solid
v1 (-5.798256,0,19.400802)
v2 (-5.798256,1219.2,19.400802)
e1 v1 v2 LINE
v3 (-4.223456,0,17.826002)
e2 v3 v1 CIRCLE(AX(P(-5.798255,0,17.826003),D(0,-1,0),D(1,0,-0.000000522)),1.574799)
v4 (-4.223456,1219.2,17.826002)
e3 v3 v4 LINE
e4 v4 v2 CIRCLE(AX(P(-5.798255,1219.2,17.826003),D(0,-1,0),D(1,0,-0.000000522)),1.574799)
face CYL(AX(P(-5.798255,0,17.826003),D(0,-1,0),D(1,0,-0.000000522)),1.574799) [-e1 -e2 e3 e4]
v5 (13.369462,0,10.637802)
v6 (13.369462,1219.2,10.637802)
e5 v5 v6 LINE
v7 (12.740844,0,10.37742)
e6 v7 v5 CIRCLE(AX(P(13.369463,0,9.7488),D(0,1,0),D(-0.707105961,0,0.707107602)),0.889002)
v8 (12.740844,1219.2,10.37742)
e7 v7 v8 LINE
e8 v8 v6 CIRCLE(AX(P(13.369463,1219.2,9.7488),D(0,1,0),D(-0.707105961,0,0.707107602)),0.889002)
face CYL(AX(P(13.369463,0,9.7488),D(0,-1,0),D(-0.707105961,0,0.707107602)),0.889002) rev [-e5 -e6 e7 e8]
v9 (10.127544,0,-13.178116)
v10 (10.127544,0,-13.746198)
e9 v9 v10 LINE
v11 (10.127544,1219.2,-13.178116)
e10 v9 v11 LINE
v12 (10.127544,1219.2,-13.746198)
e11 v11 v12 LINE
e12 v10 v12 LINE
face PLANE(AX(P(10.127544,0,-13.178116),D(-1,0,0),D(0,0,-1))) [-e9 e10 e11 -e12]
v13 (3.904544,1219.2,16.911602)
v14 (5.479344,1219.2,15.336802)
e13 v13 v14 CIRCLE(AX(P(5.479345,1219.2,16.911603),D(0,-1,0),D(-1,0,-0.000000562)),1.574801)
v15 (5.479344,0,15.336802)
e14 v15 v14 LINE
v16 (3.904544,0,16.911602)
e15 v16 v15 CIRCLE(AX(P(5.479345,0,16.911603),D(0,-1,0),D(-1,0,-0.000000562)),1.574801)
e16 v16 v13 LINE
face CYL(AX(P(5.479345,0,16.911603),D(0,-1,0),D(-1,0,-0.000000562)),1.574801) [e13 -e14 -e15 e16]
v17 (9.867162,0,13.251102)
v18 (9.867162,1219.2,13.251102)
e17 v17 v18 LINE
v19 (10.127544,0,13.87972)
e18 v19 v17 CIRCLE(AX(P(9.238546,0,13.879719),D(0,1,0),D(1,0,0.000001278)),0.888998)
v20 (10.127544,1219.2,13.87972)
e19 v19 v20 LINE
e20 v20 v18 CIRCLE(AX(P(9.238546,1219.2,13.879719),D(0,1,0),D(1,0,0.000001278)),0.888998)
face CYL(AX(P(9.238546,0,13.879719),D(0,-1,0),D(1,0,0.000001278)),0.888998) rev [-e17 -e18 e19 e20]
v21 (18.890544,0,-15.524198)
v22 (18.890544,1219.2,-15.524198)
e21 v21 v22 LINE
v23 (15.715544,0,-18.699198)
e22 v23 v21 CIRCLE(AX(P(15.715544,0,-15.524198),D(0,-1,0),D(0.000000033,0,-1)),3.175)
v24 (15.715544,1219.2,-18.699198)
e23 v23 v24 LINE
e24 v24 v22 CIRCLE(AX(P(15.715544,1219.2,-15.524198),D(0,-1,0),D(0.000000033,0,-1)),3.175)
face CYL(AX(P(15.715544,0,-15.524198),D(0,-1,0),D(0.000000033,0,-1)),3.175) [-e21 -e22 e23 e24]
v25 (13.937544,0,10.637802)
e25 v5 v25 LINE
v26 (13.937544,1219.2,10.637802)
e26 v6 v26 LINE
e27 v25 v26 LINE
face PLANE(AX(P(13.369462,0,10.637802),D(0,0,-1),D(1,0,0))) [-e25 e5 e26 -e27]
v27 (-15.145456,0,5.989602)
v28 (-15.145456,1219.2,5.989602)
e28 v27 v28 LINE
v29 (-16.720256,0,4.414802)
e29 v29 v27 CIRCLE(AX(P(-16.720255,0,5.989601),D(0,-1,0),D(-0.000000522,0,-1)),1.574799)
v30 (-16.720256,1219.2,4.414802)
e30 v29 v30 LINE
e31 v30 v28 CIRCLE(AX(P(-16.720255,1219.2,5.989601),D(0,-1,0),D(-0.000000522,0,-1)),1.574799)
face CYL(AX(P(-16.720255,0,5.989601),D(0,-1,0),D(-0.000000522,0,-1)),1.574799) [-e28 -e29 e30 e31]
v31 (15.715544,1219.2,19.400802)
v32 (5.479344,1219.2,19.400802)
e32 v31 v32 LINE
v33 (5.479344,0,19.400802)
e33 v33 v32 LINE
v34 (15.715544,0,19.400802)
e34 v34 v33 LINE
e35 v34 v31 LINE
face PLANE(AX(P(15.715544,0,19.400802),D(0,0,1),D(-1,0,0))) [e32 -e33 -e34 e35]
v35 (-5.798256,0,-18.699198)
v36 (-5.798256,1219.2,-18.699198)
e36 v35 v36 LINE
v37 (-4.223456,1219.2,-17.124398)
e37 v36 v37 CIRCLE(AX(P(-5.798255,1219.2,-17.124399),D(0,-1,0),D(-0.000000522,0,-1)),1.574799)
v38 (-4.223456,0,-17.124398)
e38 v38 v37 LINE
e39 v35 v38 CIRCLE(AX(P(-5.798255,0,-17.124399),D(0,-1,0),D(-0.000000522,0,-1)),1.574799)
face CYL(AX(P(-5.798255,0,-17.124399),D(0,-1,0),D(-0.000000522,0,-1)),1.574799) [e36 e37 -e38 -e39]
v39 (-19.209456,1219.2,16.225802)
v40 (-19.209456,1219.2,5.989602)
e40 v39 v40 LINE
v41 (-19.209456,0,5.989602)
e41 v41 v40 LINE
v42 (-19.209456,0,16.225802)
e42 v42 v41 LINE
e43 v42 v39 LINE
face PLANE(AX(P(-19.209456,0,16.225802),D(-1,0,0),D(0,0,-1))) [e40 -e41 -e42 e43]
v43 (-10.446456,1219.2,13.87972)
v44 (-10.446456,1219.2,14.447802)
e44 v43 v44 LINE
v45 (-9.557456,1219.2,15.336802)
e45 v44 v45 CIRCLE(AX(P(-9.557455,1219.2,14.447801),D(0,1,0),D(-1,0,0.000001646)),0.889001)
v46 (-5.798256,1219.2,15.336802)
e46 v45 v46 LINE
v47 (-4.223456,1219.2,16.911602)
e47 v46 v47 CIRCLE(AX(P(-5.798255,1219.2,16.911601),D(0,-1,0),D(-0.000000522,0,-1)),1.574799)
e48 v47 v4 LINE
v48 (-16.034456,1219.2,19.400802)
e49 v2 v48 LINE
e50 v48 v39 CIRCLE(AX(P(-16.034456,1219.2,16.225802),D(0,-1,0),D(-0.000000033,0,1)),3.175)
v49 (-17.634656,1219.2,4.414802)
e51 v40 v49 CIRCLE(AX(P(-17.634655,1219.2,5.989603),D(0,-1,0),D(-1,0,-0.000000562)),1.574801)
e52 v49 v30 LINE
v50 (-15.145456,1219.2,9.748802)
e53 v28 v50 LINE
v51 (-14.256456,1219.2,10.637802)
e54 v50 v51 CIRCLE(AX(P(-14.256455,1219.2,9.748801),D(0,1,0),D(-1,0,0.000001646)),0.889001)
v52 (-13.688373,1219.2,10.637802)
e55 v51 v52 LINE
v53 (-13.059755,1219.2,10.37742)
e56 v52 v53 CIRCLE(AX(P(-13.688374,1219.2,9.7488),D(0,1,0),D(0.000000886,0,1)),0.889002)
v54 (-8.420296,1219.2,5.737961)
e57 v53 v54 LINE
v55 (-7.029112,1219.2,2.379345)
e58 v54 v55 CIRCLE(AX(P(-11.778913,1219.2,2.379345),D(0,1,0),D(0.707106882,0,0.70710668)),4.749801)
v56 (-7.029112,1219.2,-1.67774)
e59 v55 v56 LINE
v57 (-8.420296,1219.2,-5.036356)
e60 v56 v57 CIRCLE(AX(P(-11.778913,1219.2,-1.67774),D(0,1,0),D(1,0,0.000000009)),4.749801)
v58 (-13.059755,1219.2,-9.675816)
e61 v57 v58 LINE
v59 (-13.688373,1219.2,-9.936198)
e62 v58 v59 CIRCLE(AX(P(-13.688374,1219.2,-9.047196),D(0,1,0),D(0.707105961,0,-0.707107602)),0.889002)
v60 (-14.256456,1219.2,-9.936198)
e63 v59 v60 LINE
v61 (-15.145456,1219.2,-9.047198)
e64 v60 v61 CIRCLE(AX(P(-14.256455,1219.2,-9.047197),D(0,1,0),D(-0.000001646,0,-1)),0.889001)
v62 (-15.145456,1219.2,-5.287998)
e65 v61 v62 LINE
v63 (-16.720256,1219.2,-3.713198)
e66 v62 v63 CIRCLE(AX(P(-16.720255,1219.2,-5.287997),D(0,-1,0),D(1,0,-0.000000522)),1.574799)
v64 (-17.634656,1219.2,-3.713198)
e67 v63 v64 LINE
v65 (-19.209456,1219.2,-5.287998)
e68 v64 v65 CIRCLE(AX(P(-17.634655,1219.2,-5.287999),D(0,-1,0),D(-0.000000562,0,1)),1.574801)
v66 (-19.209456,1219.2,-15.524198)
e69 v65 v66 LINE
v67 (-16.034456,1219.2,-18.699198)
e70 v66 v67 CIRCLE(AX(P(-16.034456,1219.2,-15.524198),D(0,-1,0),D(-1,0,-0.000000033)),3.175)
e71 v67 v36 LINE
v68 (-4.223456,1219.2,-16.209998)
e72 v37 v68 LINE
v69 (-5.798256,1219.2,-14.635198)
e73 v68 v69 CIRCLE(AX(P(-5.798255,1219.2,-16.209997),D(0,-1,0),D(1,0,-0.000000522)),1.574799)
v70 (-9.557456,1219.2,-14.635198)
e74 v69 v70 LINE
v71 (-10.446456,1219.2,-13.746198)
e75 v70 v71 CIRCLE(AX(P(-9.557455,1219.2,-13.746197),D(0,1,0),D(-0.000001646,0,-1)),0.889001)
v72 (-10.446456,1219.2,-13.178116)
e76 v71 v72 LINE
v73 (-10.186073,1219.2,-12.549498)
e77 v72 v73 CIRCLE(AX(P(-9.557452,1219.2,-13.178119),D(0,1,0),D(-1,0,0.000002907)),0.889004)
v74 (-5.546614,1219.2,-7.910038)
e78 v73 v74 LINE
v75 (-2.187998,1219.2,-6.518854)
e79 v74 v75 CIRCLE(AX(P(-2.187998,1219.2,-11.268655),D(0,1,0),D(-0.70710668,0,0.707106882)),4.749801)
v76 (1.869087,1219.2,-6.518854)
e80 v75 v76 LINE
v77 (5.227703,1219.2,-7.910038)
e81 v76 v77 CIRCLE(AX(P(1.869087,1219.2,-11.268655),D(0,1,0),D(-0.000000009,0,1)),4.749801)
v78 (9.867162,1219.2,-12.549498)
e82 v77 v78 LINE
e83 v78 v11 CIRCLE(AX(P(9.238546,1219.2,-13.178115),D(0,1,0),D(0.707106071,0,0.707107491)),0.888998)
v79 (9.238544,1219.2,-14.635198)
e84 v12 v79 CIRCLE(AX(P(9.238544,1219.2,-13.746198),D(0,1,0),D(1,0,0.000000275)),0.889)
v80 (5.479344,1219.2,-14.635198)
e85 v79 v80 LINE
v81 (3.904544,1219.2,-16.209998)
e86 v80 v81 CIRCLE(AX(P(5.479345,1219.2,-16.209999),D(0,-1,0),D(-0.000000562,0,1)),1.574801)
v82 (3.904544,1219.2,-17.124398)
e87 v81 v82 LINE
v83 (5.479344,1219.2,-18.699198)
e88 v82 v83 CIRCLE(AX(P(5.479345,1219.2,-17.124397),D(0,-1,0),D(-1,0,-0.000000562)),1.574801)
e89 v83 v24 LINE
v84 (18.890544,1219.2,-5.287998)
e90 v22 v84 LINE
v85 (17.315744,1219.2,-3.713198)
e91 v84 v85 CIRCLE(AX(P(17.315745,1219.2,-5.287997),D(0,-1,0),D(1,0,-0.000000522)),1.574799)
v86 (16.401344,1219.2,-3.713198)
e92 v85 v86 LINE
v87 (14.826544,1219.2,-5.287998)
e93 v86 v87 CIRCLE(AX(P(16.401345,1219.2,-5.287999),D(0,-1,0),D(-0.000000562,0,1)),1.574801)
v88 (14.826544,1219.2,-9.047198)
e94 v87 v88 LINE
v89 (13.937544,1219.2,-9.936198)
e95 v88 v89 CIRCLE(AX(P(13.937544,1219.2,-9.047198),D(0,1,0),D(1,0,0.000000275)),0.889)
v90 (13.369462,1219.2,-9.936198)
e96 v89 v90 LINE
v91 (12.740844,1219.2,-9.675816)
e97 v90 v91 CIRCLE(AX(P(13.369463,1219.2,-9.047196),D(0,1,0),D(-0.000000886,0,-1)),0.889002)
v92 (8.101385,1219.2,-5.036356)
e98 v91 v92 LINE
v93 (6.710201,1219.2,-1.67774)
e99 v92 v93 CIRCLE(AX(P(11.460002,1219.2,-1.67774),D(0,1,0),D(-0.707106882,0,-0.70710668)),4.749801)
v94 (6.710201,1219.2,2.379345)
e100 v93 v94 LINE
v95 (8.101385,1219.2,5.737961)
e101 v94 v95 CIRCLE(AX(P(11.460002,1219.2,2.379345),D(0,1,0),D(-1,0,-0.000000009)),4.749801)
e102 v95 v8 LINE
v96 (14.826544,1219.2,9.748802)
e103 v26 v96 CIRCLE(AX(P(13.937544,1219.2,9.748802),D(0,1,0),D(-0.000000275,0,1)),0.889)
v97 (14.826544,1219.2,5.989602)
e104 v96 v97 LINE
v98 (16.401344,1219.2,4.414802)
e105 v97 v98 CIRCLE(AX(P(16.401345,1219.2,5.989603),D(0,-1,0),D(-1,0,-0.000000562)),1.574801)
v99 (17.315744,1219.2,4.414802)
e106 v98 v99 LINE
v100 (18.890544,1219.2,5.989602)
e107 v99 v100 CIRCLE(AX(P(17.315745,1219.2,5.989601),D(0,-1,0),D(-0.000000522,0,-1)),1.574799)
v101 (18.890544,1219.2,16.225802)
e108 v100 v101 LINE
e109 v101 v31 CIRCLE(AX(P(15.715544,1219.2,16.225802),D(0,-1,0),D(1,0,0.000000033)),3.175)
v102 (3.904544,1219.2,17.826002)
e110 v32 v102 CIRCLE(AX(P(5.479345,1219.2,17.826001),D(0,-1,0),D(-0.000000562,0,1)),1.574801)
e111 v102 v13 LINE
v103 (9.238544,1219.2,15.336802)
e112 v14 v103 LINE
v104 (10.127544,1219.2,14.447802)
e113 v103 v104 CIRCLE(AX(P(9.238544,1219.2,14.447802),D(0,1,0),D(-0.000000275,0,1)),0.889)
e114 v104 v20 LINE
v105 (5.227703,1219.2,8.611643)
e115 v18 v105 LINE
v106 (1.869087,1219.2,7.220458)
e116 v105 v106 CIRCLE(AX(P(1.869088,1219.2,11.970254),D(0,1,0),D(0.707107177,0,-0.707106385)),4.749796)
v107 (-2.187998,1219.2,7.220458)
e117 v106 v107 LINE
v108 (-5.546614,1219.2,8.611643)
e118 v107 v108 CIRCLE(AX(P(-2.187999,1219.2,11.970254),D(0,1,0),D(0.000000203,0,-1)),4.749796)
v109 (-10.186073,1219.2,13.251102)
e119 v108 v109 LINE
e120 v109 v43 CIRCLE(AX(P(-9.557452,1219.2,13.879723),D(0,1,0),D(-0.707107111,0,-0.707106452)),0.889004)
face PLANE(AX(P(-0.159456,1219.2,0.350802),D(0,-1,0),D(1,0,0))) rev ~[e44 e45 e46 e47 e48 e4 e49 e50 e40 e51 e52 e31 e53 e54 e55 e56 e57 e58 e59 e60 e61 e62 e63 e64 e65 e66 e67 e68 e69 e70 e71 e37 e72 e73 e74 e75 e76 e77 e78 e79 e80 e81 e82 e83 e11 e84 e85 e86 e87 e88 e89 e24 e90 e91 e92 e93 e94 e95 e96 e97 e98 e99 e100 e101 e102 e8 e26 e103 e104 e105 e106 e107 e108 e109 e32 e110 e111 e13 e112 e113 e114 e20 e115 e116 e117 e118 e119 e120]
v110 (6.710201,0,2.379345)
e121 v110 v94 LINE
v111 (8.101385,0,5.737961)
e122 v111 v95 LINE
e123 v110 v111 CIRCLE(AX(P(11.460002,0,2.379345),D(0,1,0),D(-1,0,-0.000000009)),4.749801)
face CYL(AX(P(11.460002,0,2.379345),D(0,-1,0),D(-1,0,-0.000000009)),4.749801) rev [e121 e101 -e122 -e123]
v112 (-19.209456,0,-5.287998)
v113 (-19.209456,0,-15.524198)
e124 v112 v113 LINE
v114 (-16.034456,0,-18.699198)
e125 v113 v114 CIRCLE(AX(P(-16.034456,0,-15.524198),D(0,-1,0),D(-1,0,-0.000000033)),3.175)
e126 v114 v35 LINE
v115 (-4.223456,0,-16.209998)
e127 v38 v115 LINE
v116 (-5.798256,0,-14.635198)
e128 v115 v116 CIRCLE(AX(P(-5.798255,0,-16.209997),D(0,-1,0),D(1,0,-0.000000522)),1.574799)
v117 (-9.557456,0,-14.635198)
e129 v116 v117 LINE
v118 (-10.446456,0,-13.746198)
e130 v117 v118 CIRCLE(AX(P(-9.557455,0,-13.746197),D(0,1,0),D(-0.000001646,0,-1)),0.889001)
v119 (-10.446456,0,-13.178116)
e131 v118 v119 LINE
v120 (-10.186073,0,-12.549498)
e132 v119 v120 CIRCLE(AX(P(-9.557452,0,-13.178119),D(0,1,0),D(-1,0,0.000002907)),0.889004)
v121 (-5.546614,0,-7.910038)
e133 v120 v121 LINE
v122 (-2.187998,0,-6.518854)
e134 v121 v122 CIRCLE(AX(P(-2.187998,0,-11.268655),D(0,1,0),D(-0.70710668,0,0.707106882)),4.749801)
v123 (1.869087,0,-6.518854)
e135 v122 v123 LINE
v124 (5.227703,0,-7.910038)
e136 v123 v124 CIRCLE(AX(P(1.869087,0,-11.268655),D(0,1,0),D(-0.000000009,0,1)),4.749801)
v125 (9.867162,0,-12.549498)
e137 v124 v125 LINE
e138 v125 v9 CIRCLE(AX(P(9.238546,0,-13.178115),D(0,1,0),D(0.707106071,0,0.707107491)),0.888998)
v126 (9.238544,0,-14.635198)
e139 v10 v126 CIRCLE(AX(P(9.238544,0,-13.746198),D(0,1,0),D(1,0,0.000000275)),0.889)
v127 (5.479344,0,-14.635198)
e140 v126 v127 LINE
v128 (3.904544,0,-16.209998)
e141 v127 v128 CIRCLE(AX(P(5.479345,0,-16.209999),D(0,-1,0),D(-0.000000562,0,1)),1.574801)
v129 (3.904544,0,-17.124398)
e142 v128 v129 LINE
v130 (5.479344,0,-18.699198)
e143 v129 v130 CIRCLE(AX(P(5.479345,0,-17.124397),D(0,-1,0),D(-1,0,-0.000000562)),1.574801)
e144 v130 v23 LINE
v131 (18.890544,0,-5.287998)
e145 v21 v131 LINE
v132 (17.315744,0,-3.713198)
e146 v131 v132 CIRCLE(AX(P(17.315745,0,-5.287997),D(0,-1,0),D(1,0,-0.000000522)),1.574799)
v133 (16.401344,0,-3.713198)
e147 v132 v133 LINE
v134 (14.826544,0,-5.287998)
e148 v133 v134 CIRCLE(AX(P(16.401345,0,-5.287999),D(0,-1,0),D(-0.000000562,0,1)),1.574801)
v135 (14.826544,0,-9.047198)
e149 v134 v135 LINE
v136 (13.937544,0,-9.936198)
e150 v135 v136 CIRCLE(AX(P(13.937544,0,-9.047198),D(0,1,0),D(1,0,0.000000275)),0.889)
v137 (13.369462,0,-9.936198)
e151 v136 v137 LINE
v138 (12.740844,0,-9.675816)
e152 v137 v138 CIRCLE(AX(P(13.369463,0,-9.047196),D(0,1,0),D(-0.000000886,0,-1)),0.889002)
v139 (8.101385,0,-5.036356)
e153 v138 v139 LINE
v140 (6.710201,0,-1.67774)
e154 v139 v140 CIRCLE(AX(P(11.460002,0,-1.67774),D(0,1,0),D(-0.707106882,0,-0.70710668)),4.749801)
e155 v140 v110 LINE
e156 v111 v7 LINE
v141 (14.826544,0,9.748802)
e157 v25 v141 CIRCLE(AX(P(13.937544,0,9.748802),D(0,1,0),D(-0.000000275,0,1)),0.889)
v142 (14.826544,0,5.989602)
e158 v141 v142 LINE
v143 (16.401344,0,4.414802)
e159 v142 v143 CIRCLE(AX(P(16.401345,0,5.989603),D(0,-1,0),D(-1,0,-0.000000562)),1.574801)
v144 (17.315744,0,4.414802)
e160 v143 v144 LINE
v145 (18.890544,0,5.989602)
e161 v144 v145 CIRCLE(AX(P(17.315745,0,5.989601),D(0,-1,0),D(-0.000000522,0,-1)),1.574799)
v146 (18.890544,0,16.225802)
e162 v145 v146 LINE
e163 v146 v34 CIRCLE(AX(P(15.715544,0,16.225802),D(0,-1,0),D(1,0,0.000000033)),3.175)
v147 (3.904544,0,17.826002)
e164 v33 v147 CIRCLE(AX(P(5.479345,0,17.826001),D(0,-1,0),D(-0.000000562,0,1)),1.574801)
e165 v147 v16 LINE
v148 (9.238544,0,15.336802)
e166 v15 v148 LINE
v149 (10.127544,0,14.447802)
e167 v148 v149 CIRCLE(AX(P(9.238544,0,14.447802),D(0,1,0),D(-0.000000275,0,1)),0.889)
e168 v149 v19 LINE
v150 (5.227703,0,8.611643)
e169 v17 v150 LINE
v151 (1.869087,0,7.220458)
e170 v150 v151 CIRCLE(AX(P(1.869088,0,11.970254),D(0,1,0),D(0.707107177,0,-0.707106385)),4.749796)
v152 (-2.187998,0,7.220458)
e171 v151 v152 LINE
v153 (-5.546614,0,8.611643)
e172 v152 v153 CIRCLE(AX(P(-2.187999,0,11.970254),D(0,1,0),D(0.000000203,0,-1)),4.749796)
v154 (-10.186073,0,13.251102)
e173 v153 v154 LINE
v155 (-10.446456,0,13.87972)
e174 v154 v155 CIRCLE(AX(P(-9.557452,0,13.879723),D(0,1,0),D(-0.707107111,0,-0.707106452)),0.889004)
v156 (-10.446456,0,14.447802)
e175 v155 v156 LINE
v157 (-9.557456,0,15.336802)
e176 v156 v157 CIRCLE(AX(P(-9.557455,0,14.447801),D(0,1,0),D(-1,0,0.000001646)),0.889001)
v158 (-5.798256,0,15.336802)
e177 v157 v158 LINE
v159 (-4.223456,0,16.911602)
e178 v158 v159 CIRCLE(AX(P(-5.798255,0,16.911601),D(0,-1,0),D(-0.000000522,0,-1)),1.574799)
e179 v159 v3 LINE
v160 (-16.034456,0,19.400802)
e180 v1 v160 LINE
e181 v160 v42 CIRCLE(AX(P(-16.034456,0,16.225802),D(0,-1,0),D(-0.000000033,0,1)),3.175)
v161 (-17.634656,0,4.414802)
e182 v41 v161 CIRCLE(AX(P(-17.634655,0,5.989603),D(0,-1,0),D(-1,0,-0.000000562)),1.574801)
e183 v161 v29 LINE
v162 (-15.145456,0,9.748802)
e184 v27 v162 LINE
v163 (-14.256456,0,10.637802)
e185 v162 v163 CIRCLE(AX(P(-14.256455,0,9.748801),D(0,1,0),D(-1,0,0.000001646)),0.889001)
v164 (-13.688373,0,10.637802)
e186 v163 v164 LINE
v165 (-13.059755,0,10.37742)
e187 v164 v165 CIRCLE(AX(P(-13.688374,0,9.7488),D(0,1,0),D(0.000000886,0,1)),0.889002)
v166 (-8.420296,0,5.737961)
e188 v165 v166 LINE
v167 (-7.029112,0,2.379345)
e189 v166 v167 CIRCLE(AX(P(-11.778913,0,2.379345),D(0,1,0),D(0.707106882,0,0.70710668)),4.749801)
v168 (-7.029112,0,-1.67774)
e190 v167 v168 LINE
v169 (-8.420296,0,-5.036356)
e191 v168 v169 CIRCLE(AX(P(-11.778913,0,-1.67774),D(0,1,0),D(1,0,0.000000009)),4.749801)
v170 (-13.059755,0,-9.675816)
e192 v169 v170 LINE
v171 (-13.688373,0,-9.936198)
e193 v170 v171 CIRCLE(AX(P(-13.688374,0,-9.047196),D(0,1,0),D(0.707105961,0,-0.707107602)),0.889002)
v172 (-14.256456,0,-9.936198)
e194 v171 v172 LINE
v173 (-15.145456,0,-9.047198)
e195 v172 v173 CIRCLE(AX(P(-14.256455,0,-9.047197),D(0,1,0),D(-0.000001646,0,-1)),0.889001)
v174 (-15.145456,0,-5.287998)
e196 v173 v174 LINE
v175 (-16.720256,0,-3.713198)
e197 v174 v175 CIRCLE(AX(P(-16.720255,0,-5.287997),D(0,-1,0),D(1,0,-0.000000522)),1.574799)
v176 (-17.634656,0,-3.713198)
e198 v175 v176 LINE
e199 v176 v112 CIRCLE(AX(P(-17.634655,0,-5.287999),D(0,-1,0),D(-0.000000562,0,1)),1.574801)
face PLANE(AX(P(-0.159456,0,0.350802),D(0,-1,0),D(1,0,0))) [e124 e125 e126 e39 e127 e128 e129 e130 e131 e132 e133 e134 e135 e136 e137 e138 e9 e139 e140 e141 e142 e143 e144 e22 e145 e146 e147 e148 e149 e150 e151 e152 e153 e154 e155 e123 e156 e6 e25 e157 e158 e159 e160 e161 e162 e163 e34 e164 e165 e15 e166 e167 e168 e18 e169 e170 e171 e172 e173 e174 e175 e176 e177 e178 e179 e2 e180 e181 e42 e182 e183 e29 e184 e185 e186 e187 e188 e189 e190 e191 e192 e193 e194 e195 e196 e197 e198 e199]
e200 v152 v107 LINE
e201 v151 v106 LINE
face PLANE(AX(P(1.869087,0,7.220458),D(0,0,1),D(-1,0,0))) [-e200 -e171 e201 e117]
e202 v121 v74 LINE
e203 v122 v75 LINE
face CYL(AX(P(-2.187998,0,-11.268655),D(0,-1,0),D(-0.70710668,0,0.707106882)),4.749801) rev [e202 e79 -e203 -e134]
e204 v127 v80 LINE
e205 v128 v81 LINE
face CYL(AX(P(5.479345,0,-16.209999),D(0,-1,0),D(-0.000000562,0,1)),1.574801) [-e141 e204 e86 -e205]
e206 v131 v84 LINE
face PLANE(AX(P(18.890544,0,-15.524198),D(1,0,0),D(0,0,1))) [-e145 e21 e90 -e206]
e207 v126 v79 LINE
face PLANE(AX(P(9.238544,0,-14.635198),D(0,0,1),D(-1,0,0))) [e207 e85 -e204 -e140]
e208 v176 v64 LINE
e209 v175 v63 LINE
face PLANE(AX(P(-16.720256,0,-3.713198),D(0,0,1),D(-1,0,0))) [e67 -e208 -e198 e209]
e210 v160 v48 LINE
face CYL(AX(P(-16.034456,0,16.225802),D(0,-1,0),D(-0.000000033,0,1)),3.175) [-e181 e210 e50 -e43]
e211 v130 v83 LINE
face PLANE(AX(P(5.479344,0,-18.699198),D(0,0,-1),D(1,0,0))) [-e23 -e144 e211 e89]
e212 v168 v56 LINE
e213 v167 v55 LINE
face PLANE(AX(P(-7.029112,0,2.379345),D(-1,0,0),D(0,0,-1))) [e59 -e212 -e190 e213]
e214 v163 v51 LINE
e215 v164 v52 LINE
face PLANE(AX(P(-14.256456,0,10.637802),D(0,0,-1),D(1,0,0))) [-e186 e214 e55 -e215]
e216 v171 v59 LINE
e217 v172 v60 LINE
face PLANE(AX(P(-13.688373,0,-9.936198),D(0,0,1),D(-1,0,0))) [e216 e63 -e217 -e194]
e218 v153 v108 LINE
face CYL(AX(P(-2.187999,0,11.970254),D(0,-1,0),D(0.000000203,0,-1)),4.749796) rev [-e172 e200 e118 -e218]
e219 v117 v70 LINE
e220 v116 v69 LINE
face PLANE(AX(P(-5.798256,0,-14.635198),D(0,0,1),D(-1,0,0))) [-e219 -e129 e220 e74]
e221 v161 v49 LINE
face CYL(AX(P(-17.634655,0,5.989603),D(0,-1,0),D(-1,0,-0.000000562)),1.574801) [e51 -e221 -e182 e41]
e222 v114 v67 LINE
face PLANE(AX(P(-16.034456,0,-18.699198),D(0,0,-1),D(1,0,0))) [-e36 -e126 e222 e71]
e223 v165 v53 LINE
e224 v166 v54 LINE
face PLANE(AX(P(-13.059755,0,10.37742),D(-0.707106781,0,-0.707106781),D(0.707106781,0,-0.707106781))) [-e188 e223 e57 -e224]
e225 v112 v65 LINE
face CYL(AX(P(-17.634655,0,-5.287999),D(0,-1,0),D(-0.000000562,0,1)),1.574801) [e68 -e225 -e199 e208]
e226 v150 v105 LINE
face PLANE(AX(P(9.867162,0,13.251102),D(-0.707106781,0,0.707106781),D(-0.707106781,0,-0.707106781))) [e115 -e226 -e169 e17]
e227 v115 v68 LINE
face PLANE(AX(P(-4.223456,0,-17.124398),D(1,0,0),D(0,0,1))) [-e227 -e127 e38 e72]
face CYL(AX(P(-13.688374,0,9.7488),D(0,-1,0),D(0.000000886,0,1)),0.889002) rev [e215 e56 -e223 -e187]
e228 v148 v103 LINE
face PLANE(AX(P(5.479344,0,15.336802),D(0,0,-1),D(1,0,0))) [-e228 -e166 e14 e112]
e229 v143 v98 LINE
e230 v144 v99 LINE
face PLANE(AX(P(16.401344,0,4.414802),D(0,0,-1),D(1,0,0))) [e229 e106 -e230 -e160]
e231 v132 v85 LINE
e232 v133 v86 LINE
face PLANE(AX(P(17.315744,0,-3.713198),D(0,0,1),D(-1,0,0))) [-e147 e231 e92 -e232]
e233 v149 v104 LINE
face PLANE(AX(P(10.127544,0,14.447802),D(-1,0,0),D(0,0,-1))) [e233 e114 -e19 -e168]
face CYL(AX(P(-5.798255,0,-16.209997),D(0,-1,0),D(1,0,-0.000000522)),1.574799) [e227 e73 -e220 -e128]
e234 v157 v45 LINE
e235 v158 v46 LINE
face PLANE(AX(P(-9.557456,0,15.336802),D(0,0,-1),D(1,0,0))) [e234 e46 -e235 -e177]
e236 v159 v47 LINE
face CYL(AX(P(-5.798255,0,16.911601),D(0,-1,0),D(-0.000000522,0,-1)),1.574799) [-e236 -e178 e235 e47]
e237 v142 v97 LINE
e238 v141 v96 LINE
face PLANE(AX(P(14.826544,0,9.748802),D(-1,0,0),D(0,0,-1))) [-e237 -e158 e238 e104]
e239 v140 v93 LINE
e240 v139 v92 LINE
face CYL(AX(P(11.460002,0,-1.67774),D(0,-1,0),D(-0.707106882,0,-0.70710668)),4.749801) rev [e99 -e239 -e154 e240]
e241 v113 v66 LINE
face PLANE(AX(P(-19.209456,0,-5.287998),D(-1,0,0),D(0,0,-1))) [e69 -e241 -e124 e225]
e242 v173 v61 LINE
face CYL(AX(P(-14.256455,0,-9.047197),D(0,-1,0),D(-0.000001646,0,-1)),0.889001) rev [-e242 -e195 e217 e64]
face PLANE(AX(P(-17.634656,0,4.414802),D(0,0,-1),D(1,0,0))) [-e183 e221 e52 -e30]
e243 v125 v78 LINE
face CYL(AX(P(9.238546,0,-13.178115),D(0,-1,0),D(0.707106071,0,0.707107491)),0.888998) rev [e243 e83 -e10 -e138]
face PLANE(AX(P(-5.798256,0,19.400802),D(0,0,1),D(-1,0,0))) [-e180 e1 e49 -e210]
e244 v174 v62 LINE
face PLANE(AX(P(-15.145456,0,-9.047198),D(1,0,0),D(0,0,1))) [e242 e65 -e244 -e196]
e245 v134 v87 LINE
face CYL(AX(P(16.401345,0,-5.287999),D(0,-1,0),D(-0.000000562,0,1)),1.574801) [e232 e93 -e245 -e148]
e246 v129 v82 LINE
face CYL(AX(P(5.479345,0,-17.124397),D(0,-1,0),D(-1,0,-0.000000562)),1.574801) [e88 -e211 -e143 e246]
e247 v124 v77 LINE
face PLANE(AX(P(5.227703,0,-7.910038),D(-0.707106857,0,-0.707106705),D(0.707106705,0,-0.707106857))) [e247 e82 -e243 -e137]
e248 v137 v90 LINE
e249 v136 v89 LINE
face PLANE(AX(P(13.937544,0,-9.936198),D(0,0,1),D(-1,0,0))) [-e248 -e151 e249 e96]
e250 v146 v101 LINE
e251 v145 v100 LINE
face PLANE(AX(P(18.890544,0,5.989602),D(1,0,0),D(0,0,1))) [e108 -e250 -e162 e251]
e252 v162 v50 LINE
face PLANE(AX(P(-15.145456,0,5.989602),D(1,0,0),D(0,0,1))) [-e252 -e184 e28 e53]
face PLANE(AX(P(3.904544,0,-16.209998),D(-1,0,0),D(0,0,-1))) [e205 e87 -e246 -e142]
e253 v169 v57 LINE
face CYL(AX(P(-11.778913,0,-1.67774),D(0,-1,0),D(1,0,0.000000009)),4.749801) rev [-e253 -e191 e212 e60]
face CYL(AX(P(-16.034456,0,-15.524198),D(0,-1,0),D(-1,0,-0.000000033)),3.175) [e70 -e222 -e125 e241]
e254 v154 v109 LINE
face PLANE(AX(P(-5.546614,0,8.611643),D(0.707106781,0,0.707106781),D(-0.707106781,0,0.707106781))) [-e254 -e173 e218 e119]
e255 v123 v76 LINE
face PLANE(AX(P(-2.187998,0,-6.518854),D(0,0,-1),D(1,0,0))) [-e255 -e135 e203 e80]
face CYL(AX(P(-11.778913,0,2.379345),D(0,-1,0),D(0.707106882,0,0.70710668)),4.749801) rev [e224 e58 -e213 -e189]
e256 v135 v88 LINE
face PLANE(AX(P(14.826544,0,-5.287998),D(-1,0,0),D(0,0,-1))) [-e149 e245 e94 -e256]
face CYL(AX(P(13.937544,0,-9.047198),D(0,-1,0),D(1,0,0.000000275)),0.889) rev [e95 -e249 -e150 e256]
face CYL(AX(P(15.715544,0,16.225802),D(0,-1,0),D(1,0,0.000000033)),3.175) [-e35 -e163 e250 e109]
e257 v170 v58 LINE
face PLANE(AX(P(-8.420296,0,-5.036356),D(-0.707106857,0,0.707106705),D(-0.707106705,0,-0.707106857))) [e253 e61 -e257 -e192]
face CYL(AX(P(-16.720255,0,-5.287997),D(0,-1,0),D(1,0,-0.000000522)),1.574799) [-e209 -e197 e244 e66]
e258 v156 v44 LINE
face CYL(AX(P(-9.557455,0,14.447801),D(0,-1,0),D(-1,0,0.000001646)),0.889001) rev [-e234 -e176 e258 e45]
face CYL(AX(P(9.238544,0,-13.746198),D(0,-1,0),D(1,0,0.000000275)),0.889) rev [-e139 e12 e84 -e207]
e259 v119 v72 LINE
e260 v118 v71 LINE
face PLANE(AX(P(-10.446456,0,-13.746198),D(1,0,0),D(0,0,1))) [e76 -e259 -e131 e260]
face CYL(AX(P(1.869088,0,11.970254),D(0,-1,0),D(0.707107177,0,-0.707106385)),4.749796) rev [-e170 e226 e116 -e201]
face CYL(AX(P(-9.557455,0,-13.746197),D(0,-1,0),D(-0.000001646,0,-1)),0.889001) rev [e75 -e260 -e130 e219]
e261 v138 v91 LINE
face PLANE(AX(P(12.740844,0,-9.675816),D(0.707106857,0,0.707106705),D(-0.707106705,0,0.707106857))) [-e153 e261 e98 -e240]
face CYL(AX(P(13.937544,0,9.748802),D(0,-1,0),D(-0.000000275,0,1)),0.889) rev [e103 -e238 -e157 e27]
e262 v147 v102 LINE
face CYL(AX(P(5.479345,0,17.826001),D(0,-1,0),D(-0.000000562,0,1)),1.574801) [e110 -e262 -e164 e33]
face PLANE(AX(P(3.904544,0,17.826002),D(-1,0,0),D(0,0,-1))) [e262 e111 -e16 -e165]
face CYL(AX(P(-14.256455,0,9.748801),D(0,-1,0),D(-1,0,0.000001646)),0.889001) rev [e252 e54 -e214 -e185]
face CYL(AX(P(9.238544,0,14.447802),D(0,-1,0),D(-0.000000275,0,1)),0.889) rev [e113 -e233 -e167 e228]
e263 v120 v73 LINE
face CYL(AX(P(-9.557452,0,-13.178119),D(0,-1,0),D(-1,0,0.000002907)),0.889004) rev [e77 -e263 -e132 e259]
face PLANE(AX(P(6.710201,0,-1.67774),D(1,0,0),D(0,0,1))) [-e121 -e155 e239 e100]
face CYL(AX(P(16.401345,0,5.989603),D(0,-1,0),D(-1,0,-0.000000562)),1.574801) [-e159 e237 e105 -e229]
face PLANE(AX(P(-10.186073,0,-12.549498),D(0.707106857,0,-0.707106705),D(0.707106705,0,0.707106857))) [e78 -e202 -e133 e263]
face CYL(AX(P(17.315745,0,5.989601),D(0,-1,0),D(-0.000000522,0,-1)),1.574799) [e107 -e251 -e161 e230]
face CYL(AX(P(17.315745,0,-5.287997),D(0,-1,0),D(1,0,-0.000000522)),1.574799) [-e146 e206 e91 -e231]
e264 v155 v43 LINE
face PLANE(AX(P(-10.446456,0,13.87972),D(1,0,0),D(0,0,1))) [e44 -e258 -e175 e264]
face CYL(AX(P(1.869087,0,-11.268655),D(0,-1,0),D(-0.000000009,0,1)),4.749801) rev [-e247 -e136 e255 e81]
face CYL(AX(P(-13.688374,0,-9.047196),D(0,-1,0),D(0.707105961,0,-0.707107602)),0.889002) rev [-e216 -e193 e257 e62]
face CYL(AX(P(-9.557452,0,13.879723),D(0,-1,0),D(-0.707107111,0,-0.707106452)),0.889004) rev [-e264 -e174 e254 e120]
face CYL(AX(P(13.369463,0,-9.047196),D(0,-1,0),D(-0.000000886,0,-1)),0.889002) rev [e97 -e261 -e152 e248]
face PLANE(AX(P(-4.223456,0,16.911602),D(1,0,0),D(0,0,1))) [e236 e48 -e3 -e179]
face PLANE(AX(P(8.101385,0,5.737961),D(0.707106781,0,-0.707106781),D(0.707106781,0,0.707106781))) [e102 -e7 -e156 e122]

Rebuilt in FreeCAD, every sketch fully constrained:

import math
import FreeCAD as App
import Part
import Sketcher
from FreeCAD import Vector
Q = App.Units.Quantity

doc = App.newDocument("Part")
body = doc.addObject("PartDesign::Body", "Body")

# Sketch on XZ plane
sketch1 = doc.addObject("Sketcher::SketchObject", "Sketch")
body.addObject(sketch1)
sketch1.AttachmentSupport = (doc.XZ_Plane, [""])
sketch1.MapMode = "FlatFace"
sketch1.addGeometry([
    Part.LineSegment(Vector(-5.798256, 19.400802, 0), Vector(-16.034456, 19.400802, 0)),  # 0
    Part.ArcOfCircle(Part.Circle(Vector(-16.034456, 16.225802, 0), Vector(0, 0, 1), 3.175), math.radians(90.000002), math.radians(179.999998)),  # 1
    Part.LineSegment(Vector(-19.209456, 16.225802, 0), Vector(-19.209456, 5.989602, 0)),  # 2
    Part.ArcOfCircle(Part.Circle(Vector(-17.634655, 5.989603, 0), Vector(0, 0, 1), 1.574801), math.radians(-179.999968), math.radians(-90.000032)),  # 3
    Part.LineSegment(Vector(-17.634656, 4.414802, 0), Vector(-16.720256, 4.414802, 0)),  # 4
    Part.ArcOfCircle(Part.Circle(Vector(-16.720255, 5.989601, 0), Vector(0, 0, 1), 1.574799), math.radians(-90.00003), math.radians(0.00003)),  # 5
    Part.LineSegment(Vector(-15.145456, 5.989602, 0), Vector(-15.145456, 9.748802, 0)),  # 6
    Part.ArcOfCircle(Part.Circle(Vector(-14.256455, 9.748801, 0), Vector(0, 0, 1), 0.889001), math.radians(90.000094), math.radians(179.999906)),  # 7
    Part.LineSegment(Vector(-14.256456, 10.637802, 0), Vector(-13.688373, 10.637802, 0)),  # 8
    Part.ArcOfCircle(Part.Circle(Vector(-13.688374, 9.7488, 0), Vector(0, 0, 1), 0.889002), math.radians(45.000066), math.radians(89.999949)),  # 9
    Part.LineSegment(Vector(-13.059755, 10.37742, 0), Vector(-8.420296, 5.737961, 0)),  # 10
    Part.ArcOfCircle(Part.Circle(Vector(-11.778913, 2.379345, 0), Vector(0, 0, 1), 4.749801), math.radians(-0.000001), math.radians(44.999992)),  # 11
    Part.LineSegment(Vector(-7.029112, 2.379345, 0), Vector(-7.029112, -1.67774, 0)),  # 12
    Part.ArcOfCircle(Part.Circle(Vector(-11.778913, -1.67774, 0), Vector(0, 0, 1), 4.749801), math.radians(-44.999992), math.radians(0.000001)),  # 13
    Part.LineSegment(Vector(-8.420296, -5.036356, 0), Vector(-13.059755, -9.675816, 0)),  # 14
    Part.ArcOfCircle(Part.Circle(Vector(-13.688374, -9.047196, 0), Vector(0, 0, 1), 0.889002), math.radians(-89.999949), math.radians(-45.000066)),  # 15
    Part.LineSegment(Vector(-13.688373, -9.936198, 0), Vector(-14.256456, -9.936198, 0)),  # 16
    Part.ArcOfCircle(Part.Circle(Vector(-14.256455, -9.047197, 0), Vector(0, 0, 1), 0.889001), math.radians(-179.999906), math.radians(-90.000094)),  # 17
    Part.LineSegment(Vector(-15.145456, -9.047198, 0), Vector(-15.145456, -5.287998, 0)),  # 18
    Part.ArcOfCircle(Part.Circle(Vector(-16.720255, -5.287997, 0), Vector(0, 0, 1), 1.574799), math.radians(-0.00003), math.radians(90.00003)),  # 19
    Part.LineSegment(Vector(-16.720256, -3.713198, 0), Vector(-17.634656, -3.713198, 0)),  # 20
    Part.ArcOfCircle(Part.Circle(Vector(-17.634655, -5.287999, 0), Vector(0, 0, 1), 1.574801), math.radians(90.000032), math.radians(179.999968)),  # 21
    Part.LineSegment(Vector(-19.209456, -5.287998, 0), Vector(-19.209456, -15.524198, 0)),  # 22
    Part.ArcOfCircle(Part.Circle(Vector(-16.034456, -15.524198, 0), Vector(0, 0, 1), 3.175), math.radians(-179.999998), math.radians(-90.000002)),  # 23
    Part.LineSegment(Vector(-16.034456, -18.699198, 0), Vector(-5.798256, -18.699198, 0)),  # 24
    Part.ArcOfCircle(Part.Circle(Vector(-5.798255, -17.124399, 0), Vector(0, 0, 1), 1.574799), math.radians(-90.00003), math.radians(0.00003)),  # 25
    Part.LineSegment(Vector(-4.223456, -17.124398, 0), Vector(-4.223456, -16.209998, 0)),  # 26
    Part.ArcOfCircle(Part.Circle(Vector(-5.798255, -16.209997, 0), Vector(0, 0, 1), 1.574799), math.radians(-0.00003), math.radians(90.00003)),  # 27
    Part.LineSegment(Vector(-5.798256, -14.635198, 0), Vector(-9.557456, -14.635198, 0)),  # 28
    Part.ArcOfCircle(Part.Circle(Vector(-9.557455, -13.746197, 0), Vector(0, 0, 1), 0.889001), math.radians(-179.999906), math.radians(-90.000094)),  # 29
    Part.LineSegment(Vector(-10.446456, -13.746198, 0), Vector(-10.446456, -13.178116, 0)),  # 30
    Part.ArcOfCircle(Part.Circle(Vector(-9.557452, -13.178119, 0), Vector(0, 0, 1), 0.889004), math.radians(135.000027), math.radians(179.999833)),  # 31
    Part.LineSegment(Vector(-10.186073, -12.549498, 0), Vector(-5.546614, -7.910038, 0)),  # 32
    Part.ArcOfCircle(Part.Circle(Vector(-2.187998, -11.268655, 0), Vector(0, 0, 1), 4.749801), math.radians(89.999999), math.radians(134.999992)),  # 33
    Part.LineSegment(Vector(-2.187998, -6.518854, 0), Vector(1.869087, -6.518854, 0)),  # 34
    Part.ArcOfCircle(Part.Circle(Vector(1.869087, -11.268655, 0), Vector(0, 0, 1), 4.749801), math.radians(45.000008), math.radians(90.000001)),  # 35
    Part.LineSegment(Vector(5.227703, -7.910038, 0), Vector(9.867162, -12.549498, 0)),  # 36
    Part.ArcOfCircle(Part.Circle(Vector(9.238546, -13.178115, 0), Vector(0, 0, 1), 0.888998), math.radians(-0.000073), math.radians(45.000058)),  # 37
    Part.LineSegment(Vector(10.127544, -13.178116, 0), Vector(10.127544, -13.746198, 0)),  # 38
    Part.ArcOfCircle(Part.Circle(Vector(9.238544, -13.746198, 0), Vector(0, 0, 1), 0.889), math.radians(-90.000016), math.radians(0.000016)),  # 39
    Part.LineSegment(Vector(9.238544, -14.635198, 0), Vector(5.479344, -14.635198, 0)),  # 40
    Part.ArcOfCircle(Part.Circle(Vector(5.479345, -16.209999, 0), Vector(0, 0, 1), 1.574801), math.radians(90.000032), math.radians(179.999968)),  # 41
    Part.LineSegment(Vector(3.904544, -16.209998, 0), Vector(3.904544, -17.124398, 0)),  # 42
    Part.ArcOfCircle(Part.Circle(Vector(5.479345, -17.124397, 0), Vector(0, 0, 1), 1.574801), math.radians(-179.999968), math.radians(-90.000032)),  # 43
    Part.LineSegment(Vector(5.479344, -18.699198, 0), Vector(15.715544, -18.699198, 0)),  # 44
    Part.ArcOfCircle(Part.Circle(Vector(15.715544, -15.524198, 0), Vector(0, 0, 1), 3.175), math.radians(-89.999998), math.radians(-0.000002)),  # 45
    Part.LineSegment(Vector(18.890544, -15.524198, 0), Vector(18.890544, -5.287998, 0)),  # 46
    Part.ArcOfCircle(Part.Circle(Vector(17.315745, -5.287997, 0), Vector(0, 0, 1), 1.574799), math.radians(-0.00003), math.radians(90.00003)),  # 47
    Part.LineSegment(Vector(17.315744, -3.713198, 0), Vector(16.401344, -3.713198, 0)),  # 48
    Part.ArcOfCircle(Part.Circle(Vector(16.401345, -5.287999, 0), Vector(0, 0, 1), 1.574801), math.radians(90.000032), math.radians(179.999968)),  # 49
    Part.LineSegment(Vector(14.826544, -5.287998, 0), Vector(14.826544, -9.047198, 0)),  # 50
    Part.ArcOfCircle(Part.Circle(Vector(13.937544, -9.047198, 0), Vector(0, 0, 1), 0.889), math.radians(-90.000016), math.radians(0.000016)),  # 51
    Part.LineSegment(Vector(13.937544, -9.936198, 0), Vector(13.369462, -9.936198, 0)),  # 52
    Part.ArcOfCircle(Part.Circle(Vector(13.369463, -9.047196, 0), Vector(0, 0, 1), 0.889002), math.radians(-134.999934), math.radians(-90.000051)),  # 53
    Part.LineSegment(Vector(12.740844, -9.675816, 0), Vector(8.101385, -5.036356, 0)),  # 54
    Part.ArcOfCircle(Part.Circle(Vector(11.460002, -1.67774, 0), Vector(0, 0, 1), 4.749801), math.radians(179.999999), math.radians(224.999992)),  # 55
    Part.LineSegment(Vector(6.710201, -1.67774, 0), Vector(6.710201, 2.379345, 0)),  # 56
    Part.ArcOfCircle(Part.Circle(Vector(11.460002, 2.379345, 0), Vector(0, 0, 1), 4.749801), math.radians(135.000008), math.radians(180.000001)),  # 57
    Part.LineSegment(Vector(8.101385, 5.737961, 0), Vector(12.740844, 10.37742, 0)),  # 58
    Part.ArcOfCircle(Part.Circle(Vector(13.369463, 9.7488, 0), Vector(0, 0, 1), 0.889002), math.radians(90.000051), math.radians(134.999934)),  # 59
    Part.LineSegment(Vector(13.369462, 10.637802, 0), Vector(13.937544, 10.637802, 0)),  # 60
    Part.ArcOfCircle(Part.Circle(Vector(13.937544, 9.748802, 0), Vector(0, 0, 1), 0.889), math.radians(-0.000016), math.radians(90.000016)),  # 61
    Part.LineSegment(Vector(14.826544, 9.748802, 0), Vector(14.826544, 5.989602, 0)),  # 62
    Part.ArcOfCircle(Part.Circle(Vector(16.401345, 5.989603, 0), Vector(0, 0, 1), 1.574801), math.radians(-179.999968), math.radians(-90.000032)),  # 63
    Part.LineSegment(Vector(16.401344, 4.414802, 0), Vector(17.315744, 4.414802, 0)),  # 64
    Part.ArcOfCircle(Part.Circle(Vector(17.315745, 5.989601, 0), Vector(0, 0, 1), 1.574799), math.radians(-90.00003), math.radians(0.00003)),  # 65
    Part.LineSegment(Vector(18.890544, 5.989602, 0), Vector(18.890544, 16.225802, 0)),  # 66
    Part.ArcOfCircle(Part.Circle(Vector(15.715544, 16.225802, 0), Vector(0, 0, 1), 3.175), math.radians(0.000002), math.radians(89.999998)),  # 67
    Part.LineSegment(Vector(15.715544, 19.400802, 0), Vector(5.479344, 19.400802, 0)),  # 68
    Part.ArcOfCircle(Part.Circle(Vector(5.479345, 17.826001, 0), Vector(0, 0, 1), 1.574801), math.radians(90.000032), math.radians(179.999968)),  # 69
    Part.LineSegment(Vector(3.904544, 17.826002, 0), Vector(3.904544, 16.911602, 0)),  # 70
    Part.ArcOfCircle(Part.Circle(Vector(5.479345, 16.911603, 0), Vector(0, 0, 1), 1.574801), math.radians(-179.999968), math.radians(-90.000032)),  # 71
    Part.LineSegment(Vector(5.479344, 15.336802, 0), Vector(9.238544, 15.336802, 0)),  # 72
    Part.ArcOfCircle(Part.Circle(Vector(9.238544, 14.447802, 0), Vector(0, 0, 1), 0.889), math.radians(-0.000016), math.radians(90.000016)),  # 73
    Part.LineSegment(Vector(10.127544, 14.447802, 0), Vector(10.127544, 13.87972, 0)),  # 74
    Part.ArcOfCircle(Part.Circle(Vector(9.238546, 13.879719, 0), Vector(0, 0, 1), 0.888998), math.radians(-45.000058), math.radians(0.000073)),  # 75
    Part.LineSegment(Vector(9.867162, 13.251102, 0), Vector(5.227703, 8.611643, 0)),  # 76
    Part.ArcOfCircle(Part.Circle(Vector(1.869088, 11.970254, 0), Vector(0, 0, 1), 4.749796), math.radians(-90.000012), math.radians(-44.999968)),  # 77
    Part.LineSegment(Vector(1.869087, 7.220458, 0), Vector(-2.187998, 7.220458, 0)),  # 78
    Part.ArcOfCircle(Part.Circle(Vector(-2.187999, 11.970254, 0), Vector(0, 0, 1), 4.749796), math.radians(-135.000032), math.radians(-89.999988)),  # 79
    Part.LineSegment(Vector(-5.546614, 8.611643, 0), Vector(-10.186073, 13.251102, 0)),  # 80
    Part.ArcOfCircle(Part.Circle(Vector(-9.557452, 13.879723, 0), Vector(0, 0, 1), 0.889004), math.radians(-179.999833), math.radians(-135.000027)),  # 81
    Part.LineSegment(Vector(-10.446456, 13.87972, 0), Vector(-10.446456, 14.447802, 0)),  # 82
    Part.ArcOfCircle(Part.Circle(Vector(-9.557455, 14.447801, 0), Vector(0, 0, 1), 0.889001), math.radians(90.000094), math.radians(179.999906)),  # 83
    Part.LineSegment(Vector(-9.557456, 15.336802, 0), Vector(-5.798256, 15.336802, 0)),  # 84
    Part.ArcOfCircle(Part.Circle(Vector(-5.798255, 16.911601, 0), Vector(0, 0, 1), 1.574799), math.radians(-90.00003), math.radians(0.00003)),  # 85
    Part.LineSegment(Vector(-4.223456, 16.911602, 0), Vector(-4.223456, 17.826002, 0)),  # 86
    Part.ArcOfCircle(Part.Circle(Vector(-5.798255, 17.826003, 0), Vector(0, 0, 1), 1.574799), math.radians(-0.00003), math.radians(90.00003)),  # 87
], False)
sketch1.addConstraint([
    Sketcher.Constraint("Tangent", 0, 2, 1, 1),
    Sketcher.Constraint("Tangent", 1, 2, 2, 1),
    Sketcher.Constraint("Tangent", 2, 2, 3, 1),
    Sketcher.Constraint("Tangent", 3, 2, 4, 1),
    Sketcher.Constraint("Tangent", 4, 2, 5, 1),
    Sketcher.Constraint("Tangent", 5, 2, 6, 1),
    Sketcher.Constraint("Tangent", 6, 2, 7, 2),
    Sketcher.Constraint("Tangent", 7, 1, 8, 1),
    Sketcher.Constraint("Tangent", 8, 2, 9, 2),
    Sketcher.Constraint("Tangent", 9, 1, 10, 1),
    Sketcher.Constraint("Tangent", 10, 2, 11, 2),
    Sketcher.Constraint("Tangent", 11, 1, 12, 1),
    Sketcher.Constraint("Tangent", 12, 2, 13, 2),
    Sketcher.Constraint("Tangent", 13, 1, 14, 1),
    Sketcher.Constraint("Tangent", 14, 2, 15, 2),
    Sketcher.Constraint("Tangent", 15, 1, 16, 1),
    Sketcher.Constraint("Tangent", 16, 2, 17, 2),
    Sketcher.Constraint("Tangent", 17, 1, 18, 1),
    Sketcher.Constraint("Tangent", 18, 2, 19, 1),
    Sketcher.Constraint("Tangent", 19, 2, 20, 1),
    Sketcher.Constraint("Tangent", 20, 2, 21, 1),
    Sketcher.Constraint("Tangent", 21, 2, 22, 1),
    Sketcher.Constraint("Tangent", 22, 2, 23, 1),
    Sketcher.Constraint("Tangent", 23, 2, 24, 1),
    Sketcher.Constraint("Tangent", 24, 2, 25, 1),
    Sketcher.Constraint("Tangent", 25, 2, 26, 1),
    Sketcher.Constraint("Tangent", 26, 2, 27, 1),
    Sketcher.Constraint("Tangent", 27, 2, 28, 1),
    Sketcher.Constraint("Tangent", 28, 2, 29, 2),
    Sketcher.Constraint("Tangent", 29, 1, 30, 1),
    Sketcher.Constraint("Coincident", 30, 2, 31, 2),
    Sketcher.Constraint("Tangent", 31, 1, 32, 1),
    Sketcher.Constraint("Tangent", 32, 2, 33, 2),
    Sketcher.Constraint("Tangent", 33, 1, 34, 1),
    Sketcher.Constraint("Tangent", 34, 2, 35, 2),
    Sketcher.Constraint("Tangent", 35, 1, 36, 1),
    Sketcher.Constraint("Tangent", 36, 2, 37, 2),
    Sketcher.Constraint("Tangent", 37, 1, 38, 1),
    Sketcher.Constraint("Tangent", 38, 2, 39, 2),
    Sketcher.Constraint("Tangent", 39, 1, 40, 1),
    Sketcher.Constraint("Tangent", 40, 2, 41, 1),
    Sketcher.Constraint("Tangent", 41, 2, 42, 1),
    Sketcher.Constraint("Tangent", 42, 2, 43, 1),
    Sketcher.Constraint("Tangent", 43, 2, 44, 1),
    Sketcher.Constraint("Tangent", 44, 2, 45, 1),
    Sketcher.Constraint("Tangent", 45, 2, 46, 1),
    Sketcher.Constraint("Tangent", 46, 2, 47, 1),
    Sketcher.Constraint("Tangent", 47, 2, 48, 1),
    Sketcher.Constraint("Tangent", 48, 2, 49, 1),
    Sketcher.Constraint("Tangent", 49, 2, 50, 1),
    Sketcher.Constraint("Tangent", 50, 2, 51, 2),
    Sketcher.Constraint("Tangent", 51, 1, 52, 1),
    Sketcher.Constraint("Tangent", 52, 2, 53, 2),
    Sketcher.Constraint("Tangent", 53, 1, 54, 1),
    Sketcher.Constraint("Tangent", 54, 2, 55, 2),
    Sketcher.Constraint("Tangent", 55, 1, 56, 1),
    Sketcher.Constraint("Tangent", 56, 2, 57, 2),
    Sketcher.Constraint("Tangent", 57, 1, 58, 1),
    Sketcher.Constraint("Tangent", 58, 2, 59, 2),
    Sketcher.Constraint("Tangent", 59, 1, 60, 1),
    Sketcher.Constraint("Tangent", 60, 2, 61, 2),
    Sketcher.Constraint("Tangent", 61, 1, 62, 1),
    Sketcher.Constraint("Tangent", 62, 2, 63, 1),
    Sketcher.Constraint("Tangent", 63, 2, 64, 1),
    Sketcher.Constraint("Tangent", 64, 2, 65, 1),
    Sketcher.Constraint("Tangent", 65, 2, 66, 1),
    Sketcher.Constraint("Tangent", 66, 2, 67, 1),
    Sketcher.Constraint("Tangent", 67, 2, 68, 1),
    Sketcher.Constraint("Tangent", 68, 2, 69, 1),
    Sketcher.Constraint("Tangent", 69, 2, 70, 1),
    Sketcher.Constraint("Tangent", 70, 2, 71, 1),
    Sketcher.Constraint("Tangent", 71, 2, 72, 1),
    Sketcher.Constraint("Tangent", 72, 2, 73, 2),
    Sketcher.Constraint("Tangent", 73, 1, 74, 1),
    Sketcher.Constraint("Tangent", 74, 2, 75, 2),
    Sketcher.Constraint("Tangent", 75, 1, 76, 1),
    Sketcher.Constraint("Tangent", 76, 2, 77, 2),
    Sketcher.Constraint("Tangent", 77, 1, 78, 1),
    Sketcher.Constraint("Tangent", 78, 2, 79, 2),
    Sketcher.Constraint("Tangent", 79, 1, 80, 1),
    Sketcher.Constraint("Tangent", 80, 2, 81, 2),
    Sketcher.Constraint("Coincident", 81, 1, 82, 1),
    Sketcher.Constraint("Tangent", 82, 2, 83, 2),
    Sketcher.Constraint("Tangent", 83, 1, 84, 1),
    Sketcher.Constraint("Tangent", 84, 2, 85, 1),
    Sketcher.Constraint("Tangent", 85, 2, 86, 1),
    Sketcher.Constraint("Tangent", 86, 2, 87, 1),
    Sketcher.Constraint("Tangent", 87, 2, 0, 1),
    Sketcher.Constraint("Horizontal", 0),
    Sketcher.Constraint("Vertical", 2),
    Sketcher.Constraint("Horizontal", 4),
    Sketcher.Constraint("Vertical", 6),
    Sketcher.Constraint("Horizontal", 8),
    Sketcher.Constraint("Vertical", 12),
    Sketcher.Constraint("Horizontal", 16),
    Sketcher.Constraint("Vertical", 18),
    Sketcher.Constraint("Horizontal", 20),
    Sketcher.Constraint("Vertical", 22),
    Sketcher.Constraint("Horizontal", 24),
    Sketcher.Constraint("Vertical", 26),
    Sketcher.Constraint("Horizontal", 28),
    Sketcher.Constraint("Vertical", 30),
    Sketcher.Constraint("Horizontal", 34),
    Sketcher.Constraint("Vertical", 38),
    Sketcher.Constraint("Horizontal", 40),
    Sketcher.Constraint("Vertical", 42),
    Sketcher.Constraint("Horizontal", 44),
    Sketcher.Constraint("Vertical", 46),
    Sketcher.Constraint("Horizontal", 48),
    Sketcher.Constraint("Vertical", 50),
    Sketcher.Constraint("Horizontal", 52),
    Sketcher.Constraint("Vertical", 56),
    Sketcher.Constraint("Horizontal", 60),
    Sketcher.Constraint("Vertical", 62),
    Sketcher.Constraint("Horizontal", 64),
    Sketcher.Constraint("Vertical", 66),
    Sketcher.Constraint("Horizontal", 68),
    Sketcher.Constraint("Vertical", 70),
    Sketcher.Constraint("Horizontal", 72),
    Sketcher.Constraint("Vertical", 74),
    Sketcher.Constraint("Horizontal", 78),
    Sketcher.Constraint("Vertical", 82),
    Sketcher.Constraint("Horizontal", 84),
    Sketcher.Constraint("Vertical", 86),
    Sketcher.Constraint("Equal", 3, 5),
    Sketcher.Constraint("Equal", 7, 9),
    Sketcher.Constraint("Equal", 11, 13),
    Sketcher.Constraint("Equal", 9, 15),
    Sketcher.Constraint("Equal", 15, 17),
    Sketcher.Constraint("Equal", 5, 19),
    Sketcher.Constraint("Equal", 19, 21),
    Sketcher.Constraint("Equal", 1, 23),
    Sketcher.Constraint("Equal", 21, 25),
    Sketcher.Constraint("Equal", 25, 27),
    Sketcher.Constraint("Equal", 17, 29),
    Sketcher.Constraint("Equal", 15, 31),
    Sketcher.Constraint("Equal", 13, 33),
    Sketcher.Constraint("Equal", 33, 35),
    Sketcher.Constraint("Equal", 29, 39),
    Sketcher.Constraint("Equal", 27, 41),
    Sketcher.Constraint("Equal", 41, 43),
    Sketcher.Constraint("Equal", 23, 45),
    Sketcher.Constraint("Equal", 43, 47),
    Sketcher.Constraint("Equal", 47, 49),
    Sketcher.Constraint("Equal", 39, 51),
    Sketcher.Constraint("Equal", 31, 53),
    Sketcher.Constraint("Equal", 35, 55),
    Sketcher.Constraint("Equal", 55, 57),
    Sketcher.Constraint("Equal", 53, 59),
    Sketcher.Constraint("Equal", 51, 61),
    Sketcher.Constraint("Equal", 49, 63),
    Sketcher.Constraint("Equal", 63, 65),
    Sketcher.Constraint("Equal", 45, 67),
    Sketcher.Constraint("Equal", 65, 69),
    Sketcher.Constraint("Equal", 69, 71),
    Sketcher.Constraint("Equal", 61, 73),
    Sketcher.Constraint("Equal", 37, 75),
    Sketcher.Constraint("Equal", 77, 79),
    Sketcher.Constraint("Equal", 59, 81),
    Sketcher.Constraint("Equal", 73, 83),
    Sketcher.Constraint("Equal", 71, 85),
    Sketcher.Constraint("Equal", 85, 87),
    Sketcher.Constraint("Perpendicular", 10, 14),
    Sketcher.Constraint("Parallel", 14, 32),
    Sketcher.Constraint("Perpendicular", 32, 36),
    Sketcher.Constraint("Parallel", 36, 54),
    Sketcher.Constraint("Perpendicular", 54, 58),
    Sketcher.Constraint("Parallel", 58, 76),
    Sketcher.Constraint("Perpendicular", 76, 80),
    Sketcher.Constraint("Horizontal", 29, 3, 39, 3),
    Sketcher.Constraint("Horizontal", 25, 3, 43, 3),
    Sketcher.Constraint("Horizontal", 21, 3, 47, 3),
    Sketcher.Constraint("Horizontal", 17, 3, 51, 3),
    Sketcher.Constraint("Horizontal", 13, 3, 55, 3),
    Sketcher.Constraint("Horizontal", 11, 3, 57, 3),
    Sketcher.Constraint("Horizontal", 9, 3, 59, 3),
    Sketcher.Constraint("Horizontal", 5, 3, 63, 3),
    Sketcher.Constraint("Horizontal", 1, 3, 67, 3),
    Sketcher.Constraint("Horizontal", 73, 3, 83, 3),
    Sketcher.Constraint("Horizontal", 37, 3, 30, 2),
    Sketcher.Constraint("Horizontal", 32, 2, 35, 1),
    Sketcher.Constraint("Horizontal", 31, 1, 36, 2),
    Sketcher.Constraint("Horizontal", 75, 1, 80, 2),
    Sketcher.Constraint("Horizontal", 74, 2, 81, 1),
    Sketcher.Constraint("Vertical", 9, 3, 15, 3),
    Sketcher.Constraint("Vertical", 7, 3, 17, 3),
    Sketcher.Constraint("Vertical", 3, 3, 21, 3),
    Sketcher.Constraint("Vertical", 51, 3, 61, 3),
    Sketcher.Constraint("Vertical", 47, 3, 65, 3),
    Sketcher.Constraint("Vertical", 43, 3, 69, 3),
    Sketcher.Constraint("Vertical", 39, 3, 73, 3),
    Sketcher.Constraint("Vertical", 35, 3, 77, 3),
    Sketcher.Constraint("Vertical", 33, 3, 79, 3),
    Sketcher.Constraint("Vertical", 27, 3, 85, 3),
    Sketcher.Constraint("Vertical", 35, 1, 76, 2),
    Sketcher.Constraint("Equal", 28, 40),
    Sketcher.Constraint("Equal", 24, 44),
    Sketcher.Constraint("Equal", 20, 48),
    Sketcher.Constraint("Equal", 16, 52),
    Sketcher.Constraint("Equal", 68, 2),
    Sketcher.Constraint("Equal", 84, 6),
    Sketcher.Constraint("Equal", 78, 12),
    Sketcher.Constraint("Equal", 6, 18),
    Sketcher.Constraint("Equal", 2, 22),
    Sketcher.Constraint("Equal", 64, 26),
    Sketcher.Constraint("Equal", 60, 30),
    Sketcher.Constraint("Equal", 42, 70),
    Sketcher.Constraint("Equal", 38, 74),
    Sketcher.Constraint("Equal", 14, 32),
    Sketcher.Constraint("Radius", 1, Q("0.125 in")),
    Sketcher.Constraint("Radius", 3, Q("0.062 in")),
    Sketcher.Constraint("Radius", 7, Q("0.0350001 in")),
    Sketcher.Constraint("Radius", 11, Q("0.187 in")),
    Sketcher.Constraint("Radius", 37, Q("0.0349999 in")),
    Sketcher.Constraint("DistanceX", 0, 2, 0, 1, Q("0.403 in")),
    Sketcher.Constraint("DistanceX", 4, 1, 4, 2, Q("0.036 in")),
    Sketcher.Constraint("DistanceX", 28, 2, 28, 1, Q("0.148 in")),
    Sketcher.Constraint("DistanceY", 74, 2, 74, 1, 0.568082),
    Sketcher.Constraint("DistanceY", -1, 1, 1, 3, 16.225802),
    Sketcher.Constraint("DistanceY", 21, 3, -1, 1, 5.287999),
    Sketcher.Constraint("DistanceX", 33, 3, -1, 1, 2.187998),
    Sketcher.Constraint("DistanceX", -1, 1, 55, 3, 11.460002),
])
pad1 = doc.addObject("PartDesign::Pad", "Pad")
body.addObject(pad1)
pad1.Profile = sketch1
pad1.Length = Q("48 in")
pad1.Reversed = True

doc.recompute()
